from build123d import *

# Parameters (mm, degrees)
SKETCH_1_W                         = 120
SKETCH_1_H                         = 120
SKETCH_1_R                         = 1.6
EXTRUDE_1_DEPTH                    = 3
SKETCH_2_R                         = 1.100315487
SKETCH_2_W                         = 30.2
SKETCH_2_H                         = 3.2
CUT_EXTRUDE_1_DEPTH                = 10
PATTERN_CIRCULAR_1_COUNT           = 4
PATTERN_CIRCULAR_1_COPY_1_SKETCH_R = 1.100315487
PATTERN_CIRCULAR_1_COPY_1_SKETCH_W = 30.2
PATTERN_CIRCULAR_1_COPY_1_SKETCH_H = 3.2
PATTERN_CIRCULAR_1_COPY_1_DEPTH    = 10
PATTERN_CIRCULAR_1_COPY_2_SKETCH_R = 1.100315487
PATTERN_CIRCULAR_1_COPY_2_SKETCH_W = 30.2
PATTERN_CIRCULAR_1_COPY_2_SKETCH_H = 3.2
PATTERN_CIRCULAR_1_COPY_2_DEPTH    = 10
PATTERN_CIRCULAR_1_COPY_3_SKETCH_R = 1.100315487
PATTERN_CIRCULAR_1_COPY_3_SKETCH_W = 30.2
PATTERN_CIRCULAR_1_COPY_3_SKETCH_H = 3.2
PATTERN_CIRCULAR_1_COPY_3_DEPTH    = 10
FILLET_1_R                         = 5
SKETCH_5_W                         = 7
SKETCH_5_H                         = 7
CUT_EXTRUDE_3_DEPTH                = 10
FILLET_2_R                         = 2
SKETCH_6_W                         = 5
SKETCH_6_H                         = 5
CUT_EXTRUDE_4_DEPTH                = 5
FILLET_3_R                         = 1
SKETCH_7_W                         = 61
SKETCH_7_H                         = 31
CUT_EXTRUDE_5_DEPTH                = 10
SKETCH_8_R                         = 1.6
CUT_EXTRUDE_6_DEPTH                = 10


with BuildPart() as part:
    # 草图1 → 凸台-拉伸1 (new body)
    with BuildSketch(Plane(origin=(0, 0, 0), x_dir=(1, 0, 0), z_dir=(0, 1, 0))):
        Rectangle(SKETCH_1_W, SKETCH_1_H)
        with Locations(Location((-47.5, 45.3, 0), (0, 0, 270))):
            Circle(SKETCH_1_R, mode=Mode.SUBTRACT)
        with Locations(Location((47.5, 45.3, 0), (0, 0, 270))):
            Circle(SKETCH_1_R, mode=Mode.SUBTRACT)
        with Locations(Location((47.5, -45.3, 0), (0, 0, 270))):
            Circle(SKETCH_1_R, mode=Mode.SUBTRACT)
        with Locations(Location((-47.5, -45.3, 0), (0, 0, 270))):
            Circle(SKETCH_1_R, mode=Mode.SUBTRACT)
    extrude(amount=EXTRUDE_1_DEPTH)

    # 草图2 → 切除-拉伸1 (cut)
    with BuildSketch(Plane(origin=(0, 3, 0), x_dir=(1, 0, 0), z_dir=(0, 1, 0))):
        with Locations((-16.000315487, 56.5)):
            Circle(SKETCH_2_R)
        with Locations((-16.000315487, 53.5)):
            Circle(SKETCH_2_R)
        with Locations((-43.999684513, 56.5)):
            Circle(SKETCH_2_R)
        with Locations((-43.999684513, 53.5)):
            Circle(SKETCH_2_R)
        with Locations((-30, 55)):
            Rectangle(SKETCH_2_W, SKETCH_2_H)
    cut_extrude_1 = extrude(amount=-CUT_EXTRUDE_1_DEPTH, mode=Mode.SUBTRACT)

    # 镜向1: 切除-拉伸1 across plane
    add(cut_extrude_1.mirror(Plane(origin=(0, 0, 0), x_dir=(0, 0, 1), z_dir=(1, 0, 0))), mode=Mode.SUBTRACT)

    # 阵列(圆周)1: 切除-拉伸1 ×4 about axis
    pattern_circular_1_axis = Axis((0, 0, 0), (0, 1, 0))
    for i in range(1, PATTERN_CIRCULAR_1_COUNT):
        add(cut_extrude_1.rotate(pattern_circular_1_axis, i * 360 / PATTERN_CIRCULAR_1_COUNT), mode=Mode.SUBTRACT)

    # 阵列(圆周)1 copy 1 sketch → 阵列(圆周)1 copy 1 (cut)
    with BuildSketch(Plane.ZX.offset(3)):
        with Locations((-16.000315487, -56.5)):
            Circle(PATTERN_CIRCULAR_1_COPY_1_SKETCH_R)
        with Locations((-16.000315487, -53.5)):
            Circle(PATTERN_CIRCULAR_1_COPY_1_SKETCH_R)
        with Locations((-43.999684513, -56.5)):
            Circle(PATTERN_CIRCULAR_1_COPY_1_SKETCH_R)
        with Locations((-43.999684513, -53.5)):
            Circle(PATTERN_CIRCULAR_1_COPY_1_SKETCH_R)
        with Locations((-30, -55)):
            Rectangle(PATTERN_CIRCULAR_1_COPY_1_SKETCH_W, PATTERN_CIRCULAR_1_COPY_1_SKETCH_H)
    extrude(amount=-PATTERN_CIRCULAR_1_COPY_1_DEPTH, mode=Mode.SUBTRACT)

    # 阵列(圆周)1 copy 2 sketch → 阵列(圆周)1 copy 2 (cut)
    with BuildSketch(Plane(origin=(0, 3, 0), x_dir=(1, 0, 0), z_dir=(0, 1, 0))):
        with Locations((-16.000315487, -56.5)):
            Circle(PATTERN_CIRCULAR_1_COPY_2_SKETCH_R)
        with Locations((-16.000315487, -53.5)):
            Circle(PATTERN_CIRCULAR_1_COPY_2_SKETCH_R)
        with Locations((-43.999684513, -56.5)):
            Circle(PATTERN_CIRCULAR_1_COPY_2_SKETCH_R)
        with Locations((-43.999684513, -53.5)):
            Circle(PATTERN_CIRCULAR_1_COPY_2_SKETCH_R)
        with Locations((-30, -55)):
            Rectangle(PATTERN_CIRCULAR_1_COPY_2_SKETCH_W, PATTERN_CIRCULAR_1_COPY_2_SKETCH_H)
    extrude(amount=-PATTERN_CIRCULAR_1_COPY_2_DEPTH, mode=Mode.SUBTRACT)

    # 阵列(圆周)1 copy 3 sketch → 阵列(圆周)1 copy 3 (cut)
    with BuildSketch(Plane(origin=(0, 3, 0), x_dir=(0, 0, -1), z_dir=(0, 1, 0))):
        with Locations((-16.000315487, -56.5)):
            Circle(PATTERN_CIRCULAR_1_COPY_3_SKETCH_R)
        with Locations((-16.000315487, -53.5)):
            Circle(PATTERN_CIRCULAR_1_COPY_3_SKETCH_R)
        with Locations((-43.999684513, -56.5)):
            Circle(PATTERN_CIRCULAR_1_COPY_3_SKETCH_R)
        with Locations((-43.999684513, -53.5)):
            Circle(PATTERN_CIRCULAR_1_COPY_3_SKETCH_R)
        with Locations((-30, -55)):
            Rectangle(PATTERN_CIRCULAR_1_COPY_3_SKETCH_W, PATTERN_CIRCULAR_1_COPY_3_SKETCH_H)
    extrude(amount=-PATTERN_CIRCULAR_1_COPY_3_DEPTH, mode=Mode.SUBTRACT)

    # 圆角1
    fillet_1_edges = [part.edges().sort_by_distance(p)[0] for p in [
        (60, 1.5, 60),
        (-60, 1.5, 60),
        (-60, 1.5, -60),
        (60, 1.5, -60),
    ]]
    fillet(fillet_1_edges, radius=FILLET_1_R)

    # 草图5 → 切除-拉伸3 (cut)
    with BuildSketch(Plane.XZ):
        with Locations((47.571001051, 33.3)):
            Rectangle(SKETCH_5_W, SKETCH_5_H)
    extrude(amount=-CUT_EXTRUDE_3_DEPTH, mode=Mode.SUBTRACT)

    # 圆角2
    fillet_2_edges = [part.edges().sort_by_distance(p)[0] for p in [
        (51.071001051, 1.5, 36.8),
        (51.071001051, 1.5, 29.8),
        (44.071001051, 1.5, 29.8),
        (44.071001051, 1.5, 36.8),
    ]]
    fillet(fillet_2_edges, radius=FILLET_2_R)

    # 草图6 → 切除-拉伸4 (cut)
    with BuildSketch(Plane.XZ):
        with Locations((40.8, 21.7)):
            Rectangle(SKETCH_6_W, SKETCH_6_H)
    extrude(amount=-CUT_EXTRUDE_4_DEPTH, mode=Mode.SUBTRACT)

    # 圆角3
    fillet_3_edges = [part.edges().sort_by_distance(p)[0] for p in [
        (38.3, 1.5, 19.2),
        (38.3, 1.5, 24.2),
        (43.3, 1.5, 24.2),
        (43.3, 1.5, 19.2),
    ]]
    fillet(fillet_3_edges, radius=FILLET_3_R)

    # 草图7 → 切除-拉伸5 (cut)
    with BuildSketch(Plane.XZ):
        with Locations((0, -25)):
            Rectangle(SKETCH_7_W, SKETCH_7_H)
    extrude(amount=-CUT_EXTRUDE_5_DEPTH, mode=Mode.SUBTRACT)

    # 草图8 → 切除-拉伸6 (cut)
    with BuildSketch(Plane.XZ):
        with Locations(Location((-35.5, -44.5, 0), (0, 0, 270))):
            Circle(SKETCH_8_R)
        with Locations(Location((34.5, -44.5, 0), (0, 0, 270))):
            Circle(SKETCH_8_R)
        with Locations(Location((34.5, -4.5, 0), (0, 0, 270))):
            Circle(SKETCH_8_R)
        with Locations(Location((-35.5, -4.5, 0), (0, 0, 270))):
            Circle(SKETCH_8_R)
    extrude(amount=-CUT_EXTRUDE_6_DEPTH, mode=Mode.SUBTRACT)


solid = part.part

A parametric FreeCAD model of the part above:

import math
import FreeCAD as App
import Part
import Sketcher
from FreeCAD import Vector
Q = App.Units.Quantity


def edges_at(feature, points):
    """Names of the edges that pass closest to the given points."""
    edges = feature.Shape.Edges
    near = lambda p: min(range(len(edges)), key=lambda i: edges[i].distToShape(Part.Vertex(*p))[0])
    return sorted({f"Edge{near(p) + 1}" for p in points})

doc = App.newDocument("Part")
body = doc.addObject("PartDesign::Body", "Body")

sketch1 = body.newObject("Sketcher::SketchObject", "Sketch")
sketch1.AttachmentSupport = (doc.getObject("XZ_Plane"), [""])
sketch1.MapMode = "FlatFace"
sketch1.addGeometry([
    Part.LineSegment(Vector(-60, -60, 0), Vector(-60, 60, 0)),
    Part.LineSegment(Vector(-60, 60, 0), Vector(60, 60, 0)),
    Part.LineSegment(Vector(60, 60, 0), Vector(60, -60, 0)),
    Part.LineSegment(Vector(60, -60, 0), Vector(-60, -60, 0)),
    Part.Circle(Vector(-47.5, 45.3, 0), Vector(0, 0, 1), 1.6),
    Part.Circle(Vector(47.5, 45.3, 0), Vector(0, 0, 1), 1.6),
    Part.Circle(Vector(-47.5, -45.3, 0), Vector(0, 0, 1), 1.6),
    Part.Circle(Vector(47.5, -45.3, 0), Vector(0, 0, 1), 1.6),
], False)
sketch1.addConstraint([
    Sketcher.Constraint("Coincident", 0, 2, 1, 1),
    Sketcher.Constraint("Coincident", 1, 2, 2, 1),
    Sketcher.Constraint("Coincident", 2, 2, 3, 1),
    Sketcher.Constraint("Coincident", 3, 2, 0, 1),
    Sketcher.Constraint("Vertical", 0),
    Sketcher.Constraint("Horizontal", 1),
    Sketcher.Constraint("Vertical", 2),
    Sketcher.Constraint("Horizontal", 3),
    Sketcher.Constraint("Equal", 4, 5),
    Sketcher.Constraint("Equal", 5, 6),
    Sketcher.Constraint("Equal", 6, 7),
    Sketcher.Constraint("Symmetric", 5, 3, 6, 3, -1, 1),
    Sketcher.Constraint("Symmetric", 4, 3, 7, 3, -1, 1),
    Sketcher.Constraint("Symmetric", 0, 2, 2, 2, -1, 1),
    Sketcher.Constraint("Symmetric", 4, 3, 5, 3, -2),
    Sketcher.Constraint("Equal", 3, 0),
    Sketcher.Constraint("Diameter", 4, Q("3.2 mm")),
    Sketcher.Constraint("DistanceX", 1, 1, 1, 2, Q("120 mm")),
    Sketcher.Constraint("DistanceX", 4, 3, 5, 3, Q("95 mm")),
    Sketcher.Constraint("DistanceY", -1, 1, 4, 3, Q("45.3 mm")),
])
pad1 = body.newObject("PartDesign::Pad", "Pad")
pad1.Profile = sketch1
pad1.Length = 3
pad1.Reversed = True

sketch2 = body.newObject("Sketcher::SketchObject", "Sketch001")
sketch2.AttachmentSupport = (doc.getObject("XZ_Plane"), [""])
sketch2.MapMode = "FlatFace"
sketch2.AttachmentOffset = App.Placement(Vector(0, 0, -3), App.Rotation())
sketch2.addGeometry([
    Part.LineSegment(Vector(-45.1, -53.4, 0), Vector(-45.0954, -53.4, 0)),
    Part.ArcOfCircle(Part.Circle(Vector(-43.9997, -53.5, 0), Vector(0, 0, 1), 1.1003), math.radians(5), math.radians(175)),
    Part.LineSegment(Vector(-42.9039, -53.4, 0), Vector(-17.0961, -53.4, 0)),
    Part.ArcOfCircle(Part.Circle(Vector(-16.0003, -53.5, 0), Vector(0, 0, 1), 1.1003), math.radians(5), math.radians(175)),
    Part.LineSegment(Vector(-14.9046, -53.4, 0), Vector(-14.9, -53.4, 0)),
    Part.LineSegment(Vector(-14.9, -53.4, 0), Vector(-14.9, -56.6, 0)),
    Part.LineSegment(Vector(-14.9, -56.6, 0), Vector(-14.9046, -56.6, 0)),
    Part.ArcOfCircle(Part.Circle(Vector(-16.0003, -56.5, 0), Vector(0, 0, 1), 1.1003), math.radians(-175), math.radians(-5)),
    Part.LineSegment(Vector(-17.0961, -56.6, 0), Vector(-42.9039, -56.6, 0)),
    Part.ArcOfCircle(Part.Circle(Vector(-43.9997, -56.5, 0), Vector(0, 0, 1), 1.1003), math.radians(-175), math.radians(-5)),
    Part.LineSegment(Vector(-45.0954, -56.6, 0), Vector(-45.1, -56.6, 0)),
    Part.LineSegment(Vector(-45.1, -56.6, 0), Vector(-45.1, -53.4, 0)),
], False)
sketch2.addConstraint([
    Sketcher.Constraint("Coincident", 0, 2, 1, 2),
    Sketcher.Constraint("Coincident", 1, 1, 2, 1),
    Sketcher.Constraint("Coincident", 2, 2, 3, 2),
    Sketcher.Constraint("Coincident", 3, 1, 4, 1),
    Sketcher.Constraint("Coincident", 4, 2, 5, 1),
    Sketcher.Constraint("Coincident", 5, 2, 6, 1),
    Sketcher.Constraint("Coincident", 6, 2, 7, 2),
    Sketcher.Constraint("Coincident", 7, 1, 8, 1),
    Sketcher.Constraint("Coincident", 8, 2, 9, 2),
    Sketcher.Constraint("Coincident", 9, 1, 10, 1),
    Sketcher.Constraint("Coincident", 10, 2, 11, 1),
    Sketcher.Constraint("Coincident", 11, 2, 0, 1),
    Sketcher.Constraint("Horizontal", 0),
    Sketcher.Constraint("Horizontal", 2),
    Sketcher.Constraint("Horizontal", 4),
    Sketcher.Constraint("Vertical", 5),
    Sketcher.Constraint("Horizontal", 6),
    Sketcher.Constraint("Horizontal", 8),
    Sketcher.Constraint("Horizontal", 10),
    Sketcher.Constraint("Vertical", 11),
    Sketcher.Constraint("Equal", 1, 3),
    Sketcher.Constraint("Equal", 3, 7),
    Sketcher.Constraint("Equal", 7, 9),
    Sketcher.Constraint("Horizontal", 1, 3, 3, 3),
    Sketcher.Constraint("Horizontal", 7, 3, 9, 3),
    Sketcher.Constraint("Horizontal", 0, 2, 1, 1),
    Sketcher.Constraint("Horizontal", 2, 2, 3, 1),
    Sketcher.Constraint("Horizontal", 6, 2, 7, 1),
    Sketcher.Constraint("Horizontal", 8, 2, 9, 1),
    Sketcher.Constraint("Vertical", 3, 3, 7, 3),
    Sketcher.Constraint("Vertical", 1, 3, 9, 3),
    Sketcher.Constraint("Vertical", 3, 1, 6, 2),
    Sketcher.Constraint("Equal", 0, 4),
    Sketcher.Constraint("DistanceY", 5, 2, 5, 1, Q("3.2 mm")),
    Sketcher.Constraint("DistanceY", 7, 3, 3, 3, Q("3 mm")),
    Sketcher.Constraint("DistanceY", 1, 3, -1, 1, Q("53.5 mm")),
    Sketcher.Constraint("DistanceX", 4, 2, -1, 1, Q("14.9 mm")),
    Sketcher.Constraint("DistanceX", 10, 2, -1, 1, Q("45.1 mm")),
    Sketcher.Constraint("Radius", 1, Q("1.100315 mm")),
    Sketcher.Constraint("DistanceX", 0, 1, 0, 2, Q("0.004554 mm")),
])
pocket1 = body.newObject("PartDesign::Pocket", "Pocket")
pocket1.Profile = sketch2
pocket1.Length = 10
pocket1.Reversed = True
doc.recompute()

mirrored = body.newObject("PartDesign::Mirrored", "Mirrored")
mirrored.Originals = [pocket1]
mirrored.MirrorPlane = (doc.getObject("YZ_Plane"), [""])
body.Tip = mirrored
doc.recompute()

polarpattern = body.newObject("PartDesign::PolarPattern", "PolarPattern")
polarpattern.Originals = [pocket1]
polarpattern.Axis = (doc.getObject("Y_Axis"), [""])
polarpattern.Angle = 360
polarpattern.Occurrences = 4
body.Tip = polarpattern

sketch3 = body.newObject("Sketcher::SketchObject", "Sketch002")
sketch3.AttachmentSupport = (doc.getObject("XZ_Plane"), [""])
sketch3.MapMode = "FlatFace"
sketch3.AttachmentOffset = App.Placement(Vector(0, 0, -3), App.Rotation())
sketch3.addGeometry([
    Part.LineSegment(Vector(-56.6, -14.9046, 0), Vector(-56.6, -14.9, 0)),
    Part.LineSegment(Vector(-56.6, -14.9, 0), Vector(-53.4, -14.9, 0)),
    Part.LineSegment(Vector(-53.4, -14.9, 0), Vector(-53.4, -14.9046, 0)),
    Part.ArcOfCircle(Part.Circle(Vector(-53.5, -16.0003, 0), Vector(0, 0, 1), 1.1003), math.radians(-85), math.radians(85)),
    Part.LineSegment(Vector(-53.4, -17.0961, 0), Vector(-53.4, -42.9039, 0)),
    Part.ArcOfCircle(Part.Circle(Vector(-53.5, -43.9997, 0), Vector(0, 0, 1), 1.1003), math.radians(-85), math.radians(85)),
    Part.LineSegment(Vector(-53.4, -45.0954, 0), Vector(-53.4, -45.1, 0)),
    Part.LineSegment(Vector(-53.4, -45.1, 0), Vector(-56.6, -45.1, 0)),
    Part.LineSegment(Vector(-56.6, -45.1, 0), Vector(-56.6, -45.0954, 0)),
    Part.ArcOfCircle(Part.Circle(Vector(-56.5, -43.9997, 0), Vector(0, 0, 1), 1.1003), math.radians(95), math.radians(265)),
    Part.LineSegment(Vector(-56.6, -42.9039, 0), Vector(-56.6, -17.0961, 0)),
    Part.ArcOfCircle(Part.Circle(Vector(-56.5, -16.0003, 0), Vector(0, 0, 1), 1.1003), math.radians(95), math.radians(265)),
], False)
sketch3.addConstraint([
    Sketcher.Constraint("Coincident", 0, 2, 1, 1),
    Sketcher.Constraint("Coincident", 1, 2, 2, 1),
    Sketcher.Constraint("Coincident", 2, 2, 3, 2),
    Sketcher.Constraint("Coincident", 3, 1, 4, 1),
    Sketcher.Constraint("Coincident", 4, 2, 5, 2),
    Sketcher.Constraint("Coincident", 5, 1, 6, 1),
    Sketcher.Constraint("Coincident", 6, 2, 7, 1),
    Sketcher.Constraint("Coincident", 7, 2, 8, 1),
    Sketcher.Constraint("Coincident", 8, 2, 9, 2),
    Sketcher.Constraint("Coincident", 9, 1, 10, 1),
    Sketcher.Constraint("Coincident", 10, 2, 11, 2),
    Sketcher.Constraint("Coincident", 11, 1, 0, 1),
    Sketcher.Constraint("Vertical", 0),
    Sketcher.Constraint("Horizontal", 1),
    Sketcher.Constraint("Vertical", 2),
    Sketcher.Constraint("Vertical", 4),
    Sketcher.Constraint("Vertical", 6),
    Sketcher.Constraint("Horizontal", 7),
    Sketcher.Constraint("Vertical", 8),
    Sketcher.Constraint("Vertical", 10),
    Sketcher.Constraint("Equal", 3, 5),
    Sketcher.Constraint("Equal", 5, 9),
    Sketcher.Constraint("Equal", 9, 11),
    Sketcher.Constraint("Horizontal", 5, 3, 9, 3),
    Sketcher.Constraint("Horizontal", 3, 3, 11, 3),
    Sketcher.Constraint("Horizontal", 5, 1, 8, 2),
    Sketcher.Constraint("Horizontal", 4, 2, 9, 1),
    Sketcher.Constraint("Horizontal", 3, 1, 10, 2),
    Sketcher.Constraint("Horizontal", 2, 2, 11, 1),
    Sketcher.Constraint("Vertical", 3, 3, 5, 3),
    Sketcher.Constraint("Vertical", 2, 2, 3, 1),
    Sketcher.Constraint("Vertical", 4, 2, 5, 1),
    Sketcher.Constraint("Equal", 2, 6),
    Sketcher.Constraint("DistanceX", 1, 1, 1, 2, Q("3.2 mm")),
    Sketcher.Constraint("DistanceX", 9, 3, 5, 3, Q("3 mm")),
    Sketcher.Constraint("DistanceX", 3, 3, -1, 1, Q("53.5 mm")),
    Sketcher.Constraint("DistanceY", 0, 2, -1, 1, Q("14.9 mm")),
    Sketcher.Constraint("DistanceY", 6, 2, -1, 1, Q("45.1 mm")),
    Sketcher.Constraint("Radius", 3, Q("1.100315 mm")),
    Sketcher.Constraint("DistanceY", 0, 1, 0, 2, Q("0.004554 mm")),
])
pocket2 = body.newObject("PartDesign::Pocket", "Pocket001")
pocket2.Profile = sketch3
pocket2.Length = 10
pocket2.Reversed = True

sketch4 = body.newObject("Sketcher::SketchObject", "Sketch003")
sketch4.AttachmentSupport = (doc.getObject("XZ_Plane"), [""])
sketch4.MapMode = "FlatFace"
sketch4.AttachmentOffset = App.Placement(Vector(0, 0, -3), App.Rotation())
sketch4.addGeometry([
    Part.LineSegment(Vector(-14.9046, 56.6, 0), Vector(-14.9, 56.6, 0)),
    Part.LineSegment(Vector(-14.9, 56.6, 0), Vector(-14.9, 53.4, 0)),
    Part.LineSegment(Vector(-14.9, 53.4, 0), Vector(-14.9046, 53.4, 0)),
    Part.ArcOfCircle(Part.Circle(Vector(-16.0003, 53.5, 0), Vector(0, 0, 1), 1.1003), math.radians(-175), math.radians(-5)),
    Part.LineSegment(Vector(-17.0961, 53.4, 0), Vector(-42.9039, 53.4, 0)),
    Part.ArcOfCircle(Part.Circle(Vector(-43.9997, 53.5, 0), Vector(0, 0, 1), 1.1003), math.radians(-175), math.radians(-5)),
    Part.LineSegment(Vector(-45.0954, 53.4, 0), Vector(-45.1, 53.4, 0)),
    Part.LineSegment(Vector(-45.1, 53.4, 0), Vector(-45.1, 56.6, 0)),
    Part.LineSegment(Vector(-45.1, 56.6, 0), Vector(-45.0954, 56.6, 0)),
    Part.ArcOfCircle(Part.Circle(Vector(-43.9997, 56.5, 0), Vector(0, 0, 1), 1.1003), math.radians(5), math.radians(175)),
    Part.LineSegment(Vector(-42.9039, 56.6, 0), Vector(-17.0961, 56.6, 0)),
    Part.ArcOfCircle(Part.Circle(Vector(-16.0003, 56.5, 0), Vector(0, 0, 1), 1.1003), math.radians(5), math.radians(175)),
], False)
sketch4.addConstraint([
    Sketcher.Constraint("Coincident", 0, 2, 1, 1),
    Sketcher.Constraint("Coincident", 1, 2, 2, 1),
    Sketcher.Constraint("Coincident", 2, 2, 3, 2),
    Sketcher.Constraint("Coincident", 3, 1, 4, 1),
    Sketcher.Constraint("Coincident", 4, 2, 5, 2),
    Sketcher.Constraint("Coincident", 5, 1, 6, 1),
    Sketcher.Constraint("Coincident", 6, 2, 7, 1),
    Sketcher.Constraint("Coincident", 7, 2, 8, 1),
    Sketcher.Constraint("Coincident", 8, 2, 9, 2),
    Sketcher.Constraint("Coincident", 9, 1, 10, 1),
    Sketcher.Constraint("Coincident", 10, 2, 11, 2),
    Sketcher.Constraint("Coincident", 11, 1, 0, 1),
    Sketcher.Constraint("Horizontal", 0),
    Sketcher.Constraint("Vertical", 1),
    Sketcher.Constraint("Horizontal", 2),
    Sketcher.Constraint("Horizontal", 4),
    Sketcher.Constraint("Horizontal", 6),
    Sketcher.Constraint("Vertical", 7),
    Sketcher.Constraint("Horizontal", 8),
    Sketcher.Constraint("Horizontal", 10),
    Sketcher.Constraint("Equal", 3, 5),
    Sketcher.Constraint("Equal", 5, 9),
    Sketcher.Constraint("Equal", 9, 11),
    Sketcher.Constraint("Horizontal", 3, 3, 5, 3),
    Sketcher.Constraint("Horizontal", 9, 3, 11, 3),
    Sketcher.Constraint("Horizontal", 2, 2, 3, 1),
    Sketcher.Constraint("Horizontal", 4, 2, 5, 1),
    Sketcher.Constraint("Horizontal", 0, 2, 7, 2),
    Sketcher.Constraint("Horizontal", 8, 2, 9, 1),
    Sketcher.Constraint("Vertical", 5, 3, 9, 3),
    Sketcher.Constraint("Vertical", 3, 3, 11, 3),
    Sketcher.Constraint("Vertical", 5, 1, 8, 2),
    Sketcher.Constraint("Equal", 2, 6),
    Sketcher.Constraint("DistanceY", 1, 2, 1, 1, Q("3.2 mm")),
    Sketcher.Constraint("DistanceY", 5, 3, 9, 3, Q("3 mm")),
    Sketcher.Constraint("DistanceY", -1, 1, 3, 3, Q("53.5 mm")),
    Sketcher.Constraint("DistanceX", 0, 2, -1, 1, Q("14.9 mm")),
    Sketcher.Constraint("DistanceX", 6, 2, -1, 1, Q("45.1 mm")),
    Sketcher.Constraint("Radius", 3, Q("1.100315 mm")),
    Sketcher.Constraint("DistanceX", 0, 1, 0, 2, Q("0.004554 mm")),
])
pocket3 = body.newObject("PartDesign::Pocket", "Pocket002")
pocket3.Profile = sketch4
pocket3.Length = 10
pocket3.Reversed = True

sketch5 = body.newObject("Sketcher::SketchObject", "Sketch004")
sketch5.AttachmentSupport = (doc.getObject("XZ_Plane"), [""])
sketch5.MapMode = "FlatFace"
sketch5.AttachmentOffset = App.Placement(Vector(0, 0, -3), App.Rotation())
sketch5.addGeometry([
    Part.LineSegment(Vector(56.6, 14.9046, 0), Vector(56.6, 14.9, 0)),
    Part.LineSegment(Vector(56.6, 14.9, 0), Vector(53.4, 14.9, 0)),
    Part.LineSegment(Vector(53.4, 14.9, 0), Vector(53.4, 14.9046, 0)),
    Part.ArcOfCircle(Part.Circle(Vector(53.5, 16.0003, 0), Vector(0, 0, 1), 1.1003), math.radians(95), math.radians(265)),
    Part.LineSegment(Vector(53.4, 17.0961, 0), Vector(53.4, 42.9039, 0)),
    Part.ArcOfCircle(Part.Circle(Vector(53.5, 43.9997, 0), Vector(0, 0, 1), 1.1003), math.radians(95), math.radians(265)),
    Part.LineSegment(Vector(53.4, 45.0954, 0), Vector(53.4, 45.1, 0)),
    Part.LineSegment(Vector(53.4, 45.1, 0), Vector(56.6, 45.1, 0)),
    Part.LineSegment(Vector(56.6, 45.1, 0), Vector(56.6, 45.0954, 0)),
    Part.ArcOfCircle(Part.Circle(Vector(56.5, 43.9997, 0), Vector(0, 0, 1), 1.1003), math.radians(-85), math.radians(85)),
    Part.LineSegment(Vector(56.6, 42.9039, 0), Vector(56.6, 17.0961, 0)),
    Part.ArcOfCircle(Part.Circle(Vector(56.5, 16.0003, 0), Vector(0, 0, 1), 1.1003), math.radians(-85), math.radians(85)),
], False)
sketch5.addConstraint([
    Sketcher.Constraint("Coincident", 0, 2, 1, 1),
    Sketcher.Constraint("Coincident", 1, 2, 2, 1),
    Sketcher.Constraint("Coincident", 2, 2, 3, 2),
    Sketcher.Constraint("Coincident", 3, 1, 4, 1),
    Sketcher.Constraint("Coincident", 4, 2, 5, 2),
    Sketcher.Constraint("Coincident", 5, 1, 6, 1),
    Sketcher.Constraint("Coincident", 6, 2, 7, 1),
    Sketcher.Constraint("Coincident", 7, 2, 8, 1),
    Sketcher.Constraint("Coincident", 8, 2, 9, 2),
    Sketcher.Constraint("Coincident", 9, 1, 10, 1),
    Sketcher.Constraint("Coincident", 10, 2, 11, 2),
    Sketcher.Constraint("Coincident", 11, 1, 0, 1),
    Sketcher.Constraint("Vertical", 0),
    Sketcher.Constraint("Horizontal", 1),
    Sketcher.Constraint("Vertical", 2),
    Sketcher.Constraint("Vertical", 4),
    Sketcher.Constraint("Vertical", 6),
    Sketcher.Constraint("Horizontal", 7),
    Sketcher.Constraint("Vertical", 8),
    Sketcher.Constraint("Vertical", 10),
    Sketcher.Constraint("Equal", 3, 5),
    Sketcher.Constraint("Equal", 5, 9),
    Sketcher.Constraint("Equal", 9, 11),
    Sketcher.Constraint("Horizontal", 5, 3, 9, 3),
    Sketcher.Constraint("Horizontal", 3, 3, 11, 3),
    Sketcher.Constraint("Horizontal", 5, 1, 8, 2),
    Sketcher.Constraint("Horizontal", 4, 2, 9, 1),
    Sketcher.Constraint("Horizontal", 3, 1, 10, 2),
    Sketcher.Constraint("Horizontal", 2, 2, 11, 1),
    Sketcher.Constraint("Vertical", 3, 3, 5, 3),
    Sketcher.Constraint("Vertical", 2, 2, 3, 1),
    Sketcher.Constraint("Vertical", 4, 2, 5, 1),
    Sketcher.Constraint("Equal", 2, 6),
    Sketcher.Constraint("DistanceX", 1, 2, 1, 1, Q("3.2 mm")),
    Sketcher.Constraint("DistanceX", 5, 3, 9, 3, Q("3 mm")),
    Sketcher.Constraint("DistanceX", -1, 1, 3, 3, Q("53.5 mm")),
    Sketcher.Constraint("DistanceY", -1, 1, 0, 2, Q("14.9 mm")),
    Sketcher.Constraint("DistanceY", -1, 1, 6, 2, Q("45.1 mm")),
    Sketcher.Constraint("Radius", 3, Q("1.100315 mm")),
    Sketcher.Constraint("DistanceY", 0, 2, 0, 1, Q("0.004554 mm")),
])
pocket4 = body.newObject("PartDesign::Pocket", "Pocket003")
pocket4.Profile = sketch5
pocket4.Length = 10
pocket4.Reversed = True
doc.recompute()

fillet = body.newObject("PartDesign::Fillet", "Fillet")
fillet.Base = (pocket4, edges_at(pocket4, [
    (60, 1.5, 60),
    (-60, 1.5, 60),
    (-60, 1.5, -60),
    (60, 1.5, -60),
]))
fillet.Radius = 5

sketch6 = body.newObject("Sketcher::SketchObject", "Sketch005")
sketch6.AttachmentSupport = (doc.getObject("XZ_Plane"), [""])
sketch6.MapMode = "FlatFace"
sketch6.addGeometry([
    Part.LineSegment(Vector(44, 37, 0), Vector(44, 30, 0)),
    Part.LineSegment(Vector(44, 30, 0), Vector(51, 30, 0)),
    Part.LineSegment(Vector(51, 30, 0), Vector(51, 37, 0)),
    Part.LineSegment(Vector(51, 37, 0), Vector(44, 37, 0)),
], False)
sketch6.addConstraint([
    Sketcher.Constraint("Coincident", 0, 2, 1, 1),
    Sketcher.Constraint("Coincident", 1, 2, 2, 1),
    Sketcher.Constraint("Coincident", 2, 2, 3, 1),
    Sketcher.Constraint("Coincident", 3, 2, 0, 1),
    Sketcher.Constraint("Vertical", 0),
    Sketcher.Constraint("Horizontal", 1),
    Sketcher.Constraint("Vertical", 2),
    Sketcher.Constraint("Horizontal", 3),
    Sketcher.Constraint("Equal", 3, 0),
    Sketcher.Constraint("DistanceX", 1, 1, 1, 2, Q("7 mm")),
    Sketcher.Constraint("DistanceY", -1, 1, 0, 2, Q("29.8 mm")),
    Sketcher.Constraint("DistanceX", -1, 1, 0, 2, Q("44.071001 mm")),
])
pocket5 = body.newObject("PartDesign::Pocket", "Pocket004")
pocket5.Profile = sketch6
pocket5.Length = 10
doc.recompute()

fillet2 = body.newObject("PartDesign::Fillet", "Fillet001")
fillet2.Base = (pocket5, edges_at(pocket5, [
    (51.071, 1.5, 36.8),
    (51.071, 1.5, 29.8),
    (44.071, 1.5, 29.8),
    (44.071, 1.5, 36.8),
]))
fillet2.Radius = 2

sketch7 = body.newObject("Sketcher::SketchObject", "Sketch006")
sketch7.AttachmentSupport = (doc.getObject("XZ_Plane"), [""])
sketch7.MapMode = "FlatFace"
sketch7.addGeometry([
    Part.LineSegment(Vector(38, 24, 0), Vector(38, 19, 0)),
    Part.LineSegment(Vector(38, 19, 0), Vector(43, 19, 0)),
    Part.LineSegment(Vector(43, 19, 0), Vector(43, 24, 0)),
    Part.LineSegment(Vector(43, 24, 0), Vector(38, 24, 0)),
], False)
sketch7.addConstraint([
    Sketcher.Constraint("Coincident", 0, 2, 1, 1),
    Sketcher.Constraint("Coincident", 1, 2, 2, 1),
    Sketcher.Constraint("Coincident", 2, 2, 3, 1),
    Sketcher.Constraint("Coincident", 3, 2, 0, 1),
    Sketcher.Constraint("Vertical", 0),
    Sketcher.Constraint("Horizontal", 1),
    Sketcher.Constraint("Vertical", 2),
    Sketcher.Constraint("Horizontal", 3),
    Sketcher.Constraint("Equal", 3, 0),
    Sketcher.Constraint("DistanceX", 1, 1, 1, 2, Q("5 mm")),
    Sketcher.Constraint("DistanceX", -1, 1, 0, 2, Q("38.3 mm")),
    Sketcher.Constraint("DistanceY", -1, 1, 0, 2, Q("19.2 mm")),
])
pocket6 = body.newObject("PartDesign::Pocket", "Pocket005")
pocket6.Profile = sketch7
pocket6.Length = 5
doc.recompute()

fillet3 = body.newObject("PartDesign::Fillet", "Fillet002")
fillet3.Base = (pocket6, edges_at(pocket6, [
    (38.3, 1.5, 19.2),
    (38.3, 1.5, 24.2),
    (43.3, 1.5, 24.2),
    (43.3, 1.5, 19.2),
]))
fillet3.Radius = 1

sketch8 = body.newObject("Sketcher::SketchObject", "Sketch007")
sketch8.AttachmentSupport = (doc.getObject("XZ_Plane"), [""])
sketch8.MapMode = "FlatFace"
sketch8.addGeometry([
    Part.LineSegment(Vector(-30, -10, 0), Vector(-30, -40, 0)),
    Part.LineSegment(Vector(-30, -40, 0), Vector(30, -40, 0)),
    Part.LineSegment(Vector(30, -40, 0), Vector(30, -10, 0)),
    Part.LineSegment(Vector(30, -10, 0), Vector(-30, -10, 0)),
], False)
sketch8.addConstraint([
    Sketcher.Constraint("Coincident", 0, 2, 1, 1),
    Sketcher.Constraint("Coincident", 1, 2, 2, 1),
    Sketcher.Constraint("Coincident", 2, 2, 3, 1),
    Sketcher.Constraint("Coincident", 3, 2, 0, 1),
    Sketcher.Constraint("Vertical", 0),
    Sketcher.Constraint("Horizontal", 1),
    Sketcher.Constraint("Vertical", 2),
    Sketcher.Constraint("Horizontal", 3),
    Sketcher.Constraint("DistanceX", 1, 1, 1, 2, Q("61 mm")),
    Sketcher.Constraint("DistanceY", 0, 2, 0, 1, Q("31 mm")),
    Sketcher.Constraint("DistanceX", 0, 2, -1, 1, Q("30.5 mm")),
    Sketcher.Constraint("DistanceY", 0, 2, -1, 1, Q("40.5 mm")),
])
pocket7 = body.newObject("PartDesign::Pocket", "Pocket006")
pocket7.Profile = sketch8
pocket7.Length = 10

sketch9 = body.newObject("Sketcher::SketchObject", "Sketch008")
sketch9.AttachmentSupport = (doc.getObject("XZ_Plane"), [""])
sketch9.MapMode = "FlatFace"
sketch9.addGeometry([
    Part.Circle(Vector(-35.5, -44.5, 0), Vector(0, 0, 1), 1.6),
    Part.Circle(Vector(34.5, -44.5, 0), Vector(0, 0, 1), 1.6),
    Part.Circle(Vector(34.5, -4.5, 0), Vector(0, 0, 1), 1.6),
    Part.Circle(Vector(-35.5, -4.5, 0), Vector(0, 0, 1), 1.6),
], False)
sketch9.addConstraint([
    Sketcher.Constraint("Equal", 0, 1),
    Sketcher.Constraint("Equal", 1, 2),
    Sketcher.Constraint("Equal", 2, 3),
    Sketcher.Constraint("Horizontal", 0, 3, 1, 3),
    Sketcher.Constraint("Horizontal", 2, 3, 3, 3),
    Sketcher.Constraint("Vertical", 1, 3, 2, 3),
    Sketcher.Constraint("Vertical", 0, 3, 3, 3),
    Sketcher.Constraint("Diameter", 0, Q("3.2 mm")),
    Sketcher.Constraint("DistanceX", 0, 3, 1, 3, Q("70 mm")),
    Sketcher.Constraint("DistanceY", 1, 3, 2, 3, Q("40 mm")),
    Sketcher.Constraint("DistanceX", 0, 3, -1, 1, Q("35.5 mm")),
    Sketcher.Constraint("DistanceY", 0, 3, -1, 1, Q("44.5 mm")),
])
pocket8 = body.newObject("PartDesign::Pocket", "Pocket007")
pocket8.Profile = sketch9
pocket8.Length = 10

doc.recompute()
